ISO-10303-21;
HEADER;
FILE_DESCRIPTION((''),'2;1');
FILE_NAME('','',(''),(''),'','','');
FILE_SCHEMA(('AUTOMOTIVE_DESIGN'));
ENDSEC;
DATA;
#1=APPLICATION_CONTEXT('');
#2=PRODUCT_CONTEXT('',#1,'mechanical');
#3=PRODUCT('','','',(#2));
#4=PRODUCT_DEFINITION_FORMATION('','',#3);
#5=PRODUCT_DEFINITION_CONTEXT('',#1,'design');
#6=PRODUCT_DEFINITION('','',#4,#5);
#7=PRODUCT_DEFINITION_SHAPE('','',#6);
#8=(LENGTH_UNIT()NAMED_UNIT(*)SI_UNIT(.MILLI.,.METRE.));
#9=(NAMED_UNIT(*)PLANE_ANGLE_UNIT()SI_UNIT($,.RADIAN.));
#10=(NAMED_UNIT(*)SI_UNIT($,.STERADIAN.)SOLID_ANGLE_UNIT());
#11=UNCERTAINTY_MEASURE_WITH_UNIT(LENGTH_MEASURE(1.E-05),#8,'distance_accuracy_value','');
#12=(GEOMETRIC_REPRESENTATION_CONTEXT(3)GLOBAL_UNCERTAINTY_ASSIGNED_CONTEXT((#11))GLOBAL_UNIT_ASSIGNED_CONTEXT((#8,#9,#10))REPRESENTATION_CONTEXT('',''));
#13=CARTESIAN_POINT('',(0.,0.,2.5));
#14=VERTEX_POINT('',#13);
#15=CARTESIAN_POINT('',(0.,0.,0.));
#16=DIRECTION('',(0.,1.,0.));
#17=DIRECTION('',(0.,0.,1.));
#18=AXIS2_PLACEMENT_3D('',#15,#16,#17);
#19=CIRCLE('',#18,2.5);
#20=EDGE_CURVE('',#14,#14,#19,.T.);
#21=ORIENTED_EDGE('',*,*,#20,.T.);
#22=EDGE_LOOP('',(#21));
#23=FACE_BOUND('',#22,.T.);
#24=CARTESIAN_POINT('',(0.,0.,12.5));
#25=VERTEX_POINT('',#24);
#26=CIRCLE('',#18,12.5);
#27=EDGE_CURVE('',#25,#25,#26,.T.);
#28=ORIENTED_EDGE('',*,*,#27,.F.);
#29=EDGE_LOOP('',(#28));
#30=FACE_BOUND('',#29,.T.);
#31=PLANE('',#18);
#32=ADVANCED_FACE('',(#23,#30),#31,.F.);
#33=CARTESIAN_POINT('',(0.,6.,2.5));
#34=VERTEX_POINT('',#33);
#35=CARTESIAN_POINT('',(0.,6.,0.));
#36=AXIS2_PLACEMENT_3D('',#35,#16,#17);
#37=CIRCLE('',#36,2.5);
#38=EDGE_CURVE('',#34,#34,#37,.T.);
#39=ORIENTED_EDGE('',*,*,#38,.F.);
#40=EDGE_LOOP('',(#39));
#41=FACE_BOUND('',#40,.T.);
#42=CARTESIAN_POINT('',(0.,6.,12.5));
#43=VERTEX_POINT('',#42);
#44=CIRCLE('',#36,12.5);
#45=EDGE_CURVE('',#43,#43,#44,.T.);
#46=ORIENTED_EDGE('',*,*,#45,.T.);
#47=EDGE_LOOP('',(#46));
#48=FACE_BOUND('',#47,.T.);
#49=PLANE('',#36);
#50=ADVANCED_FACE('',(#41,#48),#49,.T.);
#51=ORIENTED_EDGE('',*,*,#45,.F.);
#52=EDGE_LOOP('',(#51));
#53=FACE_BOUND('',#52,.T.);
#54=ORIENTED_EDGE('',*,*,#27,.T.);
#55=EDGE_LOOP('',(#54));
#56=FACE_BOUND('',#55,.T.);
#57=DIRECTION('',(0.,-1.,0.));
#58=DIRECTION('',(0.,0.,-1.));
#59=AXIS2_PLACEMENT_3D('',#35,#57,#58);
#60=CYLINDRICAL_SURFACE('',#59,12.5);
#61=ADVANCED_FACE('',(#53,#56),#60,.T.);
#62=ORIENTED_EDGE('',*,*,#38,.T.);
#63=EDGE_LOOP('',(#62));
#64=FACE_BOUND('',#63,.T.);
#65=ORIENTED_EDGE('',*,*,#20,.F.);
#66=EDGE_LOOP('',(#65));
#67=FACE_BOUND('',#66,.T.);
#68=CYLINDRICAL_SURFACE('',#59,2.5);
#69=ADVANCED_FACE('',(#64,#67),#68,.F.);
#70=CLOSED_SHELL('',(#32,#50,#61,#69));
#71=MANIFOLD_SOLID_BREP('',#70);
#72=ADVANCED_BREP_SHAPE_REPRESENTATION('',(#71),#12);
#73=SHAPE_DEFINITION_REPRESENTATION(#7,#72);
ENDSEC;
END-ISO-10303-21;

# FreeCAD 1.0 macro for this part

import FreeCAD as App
import Part
import Sketcher
from FreeCAD import Vector

doc = App.newDocument("Part")
params = doc.addObject("Spreadsheet::Sheet", "Params")
for row, (alias, value) in enumerate([
    ("sketch1_diameter", "25 mm"),
    ("sketch1_diameter2", "5 mm"),
    ("pad1_length", "6 mm"),
], start=1):
    params.set(f"A{row}", alias)
    params.set(f"B{row}", "=" + value)
    params.setAlias(f"B{row}", alias)

body = doc.addObject("PartDesign::Body", "Body")

sketch1 = body.newObject("Sketcher::SketchObject", "Sketch")
sketch1.AttachmentSupport = (doc.getObject("XZ_Plane"), [""])
sketch1.MapMode = "FlatFace"
sketch1.addGeometry(Part.Circle(Vector(0, 0, 0), Vector(0, 0, 1), 12.5), False)
sketch1.addGeometry(Part.Circle(Vector(0, 0, 0), Vector(0, 0, 1), 2.5), False)
sketch1.addConstraint(Sketcher.Constraint("Coincident", 0, 3, -1, 1))
sketch1.addConstraint(Sketcher.Constraint("Coincident", 1, 3, -1, 1))
sketch1.addConstraint(Sketcher.Constraint("Diameter", 0, 25.0))
sketch1.addConstraint(Sketcher.Constraint("Diameter", 1, 5.0))
sketch1.setExpression("Constraints[2]", "Params.sketch1_diameter")
sketch1.setExpression("Constraints[3]", "Params.sketch1_diameter2")
pad1 = body.newObject("PartDesign::Pad", "Pad")
pad1.Profile = sketch1
pad1.setExpression("Length", "Params.pad1_length")
pad1.Reversed = True

doc.recompute()
